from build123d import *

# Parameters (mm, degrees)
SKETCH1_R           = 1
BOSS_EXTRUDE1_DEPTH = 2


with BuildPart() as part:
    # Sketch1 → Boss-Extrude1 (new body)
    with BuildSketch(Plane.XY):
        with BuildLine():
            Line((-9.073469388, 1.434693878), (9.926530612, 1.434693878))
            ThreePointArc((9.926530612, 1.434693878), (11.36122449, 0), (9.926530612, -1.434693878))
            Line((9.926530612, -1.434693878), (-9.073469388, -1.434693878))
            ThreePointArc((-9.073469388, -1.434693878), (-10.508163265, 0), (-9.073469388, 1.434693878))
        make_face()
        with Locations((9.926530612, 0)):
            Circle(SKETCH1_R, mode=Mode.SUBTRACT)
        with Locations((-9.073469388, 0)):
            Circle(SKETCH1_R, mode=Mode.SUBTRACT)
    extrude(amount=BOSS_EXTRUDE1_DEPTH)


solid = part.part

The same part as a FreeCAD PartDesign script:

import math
import FreeCAD as App
import Part
import Sketcher
from FreeCAD import Vector

doc = App.newDocument("Part")
body = doc.addObject("PartDesign::Body", "Body")

sketch1 = body.newObject("Sketcher::SketchObject", "Sketch")
sketch1.AttachmentSupport = (doc.getObject("XY_Plane"), [""])
sketch1.MapMode = "FlatFace"
sketch1.addGeometry(Part.LineSegment(Vector(9.9, 1.4, 0), Vector(-9.1, 1.4, 0)), False)
sketch1.addGeometry(Part.ArcOfCircle(Part.Circle(Vector(-9.1, 0, 0), Vector(0, 0, 1), 1.4), math.radians(90), math.radians(270)), False)
sketch1.addGeometry(Part.LineSegment(Vector(-9.1, -1.4, 0), Vector(9.9, -1.4, 0)), False)
sketch1.addGeometry(Part.ArcOfCircle(Part.Circle(Vector(9.9, 0, 0), Vector(0, 0, 1), 1.4), math.radians(-90), math.radians(90)), False)
sketch1.addGeometry(Part.Circle(Vector(9.9, 0, 0), Vector(0, 0, 1), 1), False)
sketch1.addGeometry(Part.Circle(Vector(-9.1, 0, 0), Vector(0, 0, 1), 1), False)
sketch1.addConstraint(Sketcher.Constraint("Tangent", 0, 2, 1, 1))
sketch1.addConstraint(Sketcher.Constraint("Tangent", 1, 2, 2, 1))
sketch1.addConstraint(Sketcher.Constraint("Tangent", 2, 2, 3, 1))
sketch1.addConstraint(Sketcher.Constraint("Tangent", 3, 2, 0, 1))
sketch1.addConstraint(Sketcher.Constraint("Horizontal", 0))
sketch1.addConstraint(Sketcher.Constraint("Horizontal", 2))
sketch1.addConstraint(Sketcher.Constraint("Coincident", 4, 3, 3, 3))
sketch1.addConstraint(Sketcher.Constraint("Coincident", 5, 3, 1, 3))
sketch1.addConstraint(Sketcher.Constraint("Equal", 4, 5))
sketch1.addConstraint(Sketcher.Constraint("PointOnObject", 1, 3, -1))
sketch1.addConstraint(Sketcher.Constraint("Diameter", 4, 2.0))
sketch1.addConstraint(Sketcher.Constraint("DistanceX", 0, 2, 0, 1, 19.0))
sketch1.addConstraint(Sketcher.Constraint("Radius", 1, 1.434694))
sketch1.addConstraint(Sketcher.Constraint("DistanceX", 1, 3, -1, 1, 9.073469))
pad1 = body.newObject("PartDesign::Pad", "Pad")
pad1.Profile = sketch1
pad1.Length = 2

doc.recompute()
